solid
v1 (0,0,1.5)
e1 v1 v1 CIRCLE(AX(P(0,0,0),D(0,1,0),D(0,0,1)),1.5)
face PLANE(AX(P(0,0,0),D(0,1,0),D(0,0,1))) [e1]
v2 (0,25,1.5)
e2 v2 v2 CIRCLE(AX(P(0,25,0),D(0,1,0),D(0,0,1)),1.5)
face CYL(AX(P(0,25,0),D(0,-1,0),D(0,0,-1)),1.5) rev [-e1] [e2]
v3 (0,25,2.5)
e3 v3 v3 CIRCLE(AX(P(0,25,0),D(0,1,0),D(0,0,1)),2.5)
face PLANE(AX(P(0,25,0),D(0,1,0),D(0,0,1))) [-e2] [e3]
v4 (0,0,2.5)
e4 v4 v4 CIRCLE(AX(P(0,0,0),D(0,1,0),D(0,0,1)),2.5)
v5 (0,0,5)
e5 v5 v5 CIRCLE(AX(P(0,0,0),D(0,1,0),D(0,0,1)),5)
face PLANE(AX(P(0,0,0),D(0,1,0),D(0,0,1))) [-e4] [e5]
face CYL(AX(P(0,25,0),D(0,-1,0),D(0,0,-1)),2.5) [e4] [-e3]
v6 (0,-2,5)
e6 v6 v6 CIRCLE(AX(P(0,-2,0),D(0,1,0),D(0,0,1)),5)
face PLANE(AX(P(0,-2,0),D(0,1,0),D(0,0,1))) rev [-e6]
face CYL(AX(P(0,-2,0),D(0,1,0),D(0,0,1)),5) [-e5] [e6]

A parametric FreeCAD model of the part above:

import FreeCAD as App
import Part
import Sketcher
from FreeCAD import Vector

doc = App.newDocument("Part")
body = doc.addObject("PartDesign::Body", "Body")

# Sketch on XZ plane
sketch1 = body.newObject("Sketcher::SketchObject", "Sketch")
sketch1.AttachmentSupport = (doc.getObject("XZ_Plane"), [""])
sketch1.MapMode = "FlatFace"
sketch1.addGeometry(Part.Circle(Vector(0, 0, 0), Vector(0, 0, 1), 5), False)
sketch1.addConstraint([
    Sketcher.Constraint("Coincident", 0, 3, -1, 1),
    Sketcher.Constraint("Diameter", 0, 10.0),
])
pad1 = body.newObject("PartDesign::Pad", "Pad")
pad1.Profile = sketch1
pad1.Length = 2

# Sketch on XZ plane
sketch2 = body.newObject("Sketcher::SketchObject", "Sketch001")
sketch2.AttachmentSupport = (doc.getObject("XZ_Plane"), [""])
sketch2.MapMode = "FlatFace"
sketch2.addGeometry(Part.Circle(Vector(0, 0, 0), Vector(0, 0, 1), 2.5), False)
sketch2.addConstraint([
    Sketcher.Constraint("Coincident", 0, 3, -1, 1),
    Sketcher.Constraint("Diameter", 0, 5.0),
])
pad2 = body.newObject("PartDesign::Pad", "Pad001")
pad2.Profile = sketch2
pad2.Length = 25
pad2.Reversed = True

# Sketch on XZ plane
sketch3 = body.newObject("Sketcher::SketchObject", "Sketch002")
sketch3.AttachmentSupport = (doc.getObject("XZ_Plane"), [""])
sketch3.MapMode = "FlatFace"
sketch3.addGeometry(Part.Circle(Vector(0, 0, 0), Vector(0, 0, 1), 1.5), False)
sketch3.addConstraint([
    Sketcher.Constraint("Coincident", 0, 3, -1, 1),
    Sketcher.Constraint("Diameter", 0, 3.0),
])
pocket1 = body.newObject("PartDesign::Pocket", "Pocket")
pocket1.Profile = sketch3
pocket1.Type = "ThroughAll"

doc.recompute()
